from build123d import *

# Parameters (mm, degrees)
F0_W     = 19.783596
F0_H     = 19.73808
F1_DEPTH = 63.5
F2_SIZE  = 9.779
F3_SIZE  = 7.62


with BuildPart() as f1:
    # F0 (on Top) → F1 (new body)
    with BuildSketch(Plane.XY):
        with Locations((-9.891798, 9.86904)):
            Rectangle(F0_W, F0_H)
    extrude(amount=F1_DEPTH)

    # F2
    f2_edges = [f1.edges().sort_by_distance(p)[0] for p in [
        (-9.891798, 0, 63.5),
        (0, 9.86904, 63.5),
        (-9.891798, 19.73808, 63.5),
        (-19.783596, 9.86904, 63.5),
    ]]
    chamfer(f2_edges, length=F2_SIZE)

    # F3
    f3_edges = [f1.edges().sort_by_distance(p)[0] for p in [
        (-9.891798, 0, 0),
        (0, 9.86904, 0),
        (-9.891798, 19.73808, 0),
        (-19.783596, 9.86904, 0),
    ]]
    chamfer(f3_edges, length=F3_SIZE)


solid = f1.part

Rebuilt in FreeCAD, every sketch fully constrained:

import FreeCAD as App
import Part
import Sketcher
Q = App.Units.Quantity


def edges_at(feature, points):
    """Names of the edges that pass closest to the given points."""
    edges = feature.Shape.Edges
    near = lambda p: min(range(len(edges)), key=lambda i: edges[i].distToShape(Part.Vertex(*p))[0])
    return sorted({f"Edge{near(p) + 1}" for p in points})


def add_polygon(sketch, points):
    """Adds a closed chain of lines whose ends are joined by coincident constraints."""
    first, n = sketch.GeometryCount, len(points)
    for a, b in zip(points, points[1:] + points[:1]):
        sketch.addGeometry(Part.LineSegment(App.Vector(*a, 0), App.Vector(*b, 0)), False)
    for i in range(n):
        sketch.addConstraint(Sketcher.Constraint("Coincident", first + i, 2, first + (i + 1) % n, 1))

doc = App.newDocument("Part")
params = doc.addObject("Spreadsheet::Sheet", "Params")
for row, (alias, value) in enumerate([
    ("pad1_length", "2.5 in"),
    ("chamfer_size", "0.385 in"),
    ("chamfer2_size", "0.3 in"),
], start=1):
    params.set(f"A{row}", alias)
    params.set(f"B{row}", "=" + value)
    params.setAlias(f"B{row}", alias)

body = doc.addObject("PartDesign::Body", "Body")

# Sketch on XY plane
sketch1 = body.newObject("Sketcher::SketchObject", "Sketch")
sketch1.AttachmentSupport = (doc.getObject("XY_Plane"), [""])
sketch1.MapMode = "FlatFace"
add_polygon(sketch1, [(-20, 20), (-20, 0), (0, 0), (0, 20)])  # lines 0-3
sketch1.addConstraint([
    Sketcher.Constraint("Vertical", 0),
    Sketcher.Constraint("Horizontal", 1),
    Sketcher.Constraint("Vertical", 2),
    Sketcher.Constraint("Horizontal", 3),
    Sketcher.Constraint("Coincident", 1, 2, -1, 1),
    Sketcher.Constraint("DistanceY", 0, 2, 0, 1, Q("19.73808 mm")),
    Sketcher.Constraint("DistanceX", 1, 1, 1, 2, Q("19.783596 mm")),
])
pad1 = body.newObject("PartDesign::Pad", "Pad")
pad1.Profile = sketch1
pad1.setExpression("Length", "Params.pad1_length")
doc.recompute()

chamfer = body.newObject("PartDesign::Chamfer", "Chamfer")
chamfer.Base = (pad1, edges_at(pad1, [
    (-9.892, 0, 63.5),
    (0, 9.869, 63.5),
    (-9.892, 19.738, 63.5),
    (-19.784, 9.869, 63.5),
]))
chamfer.setExpression("Size", "Params.chamfer_size")
doc.recompute()

chamfer2 = body.newObject("PartDesign::Chamfer", "Chamfer001")
chamfer2.Base = (chamfer, edges_at(chamfer, [
    (-9.892, 0, 0),
    (0, 9.869, 0),
    (-9.892, 19.738, 0),
    (-19.784, 9.869, 0),
]))
chamfer2.setExpression("Size", "Params.chamfer2_size")

doc.recompute()
